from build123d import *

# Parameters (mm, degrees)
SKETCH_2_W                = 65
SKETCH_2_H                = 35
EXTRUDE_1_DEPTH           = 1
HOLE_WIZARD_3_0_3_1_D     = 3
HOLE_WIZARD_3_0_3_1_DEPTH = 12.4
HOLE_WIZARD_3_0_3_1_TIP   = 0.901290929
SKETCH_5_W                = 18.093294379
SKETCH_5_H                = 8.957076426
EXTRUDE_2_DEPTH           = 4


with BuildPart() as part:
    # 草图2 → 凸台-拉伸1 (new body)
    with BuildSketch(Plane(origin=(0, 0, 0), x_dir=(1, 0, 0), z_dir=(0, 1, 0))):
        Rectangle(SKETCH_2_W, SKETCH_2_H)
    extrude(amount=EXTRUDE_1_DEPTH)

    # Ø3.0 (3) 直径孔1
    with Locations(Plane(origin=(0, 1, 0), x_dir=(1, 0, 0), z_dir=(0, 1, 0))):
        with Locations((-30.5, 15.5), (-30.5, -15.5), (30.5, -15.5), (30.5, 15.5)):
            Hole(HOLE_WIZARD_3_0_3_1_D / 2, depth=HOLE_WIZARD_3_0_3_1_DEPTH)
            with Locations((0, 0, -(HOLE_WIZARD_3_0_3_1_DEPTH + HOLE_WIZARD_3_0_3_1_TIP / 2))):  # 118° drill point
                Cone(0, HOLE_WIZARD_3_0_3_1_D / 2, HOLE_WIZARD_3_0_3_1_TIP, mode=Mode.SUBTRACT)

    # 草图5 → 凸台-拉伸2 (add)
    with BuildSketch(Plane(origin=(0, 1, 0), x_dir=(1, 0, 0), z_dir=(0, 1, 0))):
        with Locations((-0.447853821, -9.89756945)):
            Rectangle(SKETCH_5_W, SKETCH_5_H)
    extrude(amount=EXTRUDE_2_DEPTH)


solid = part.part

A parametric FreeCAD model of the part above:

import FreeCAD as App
import Part
import Sketcher

doc = App.newDocument("Part")
body = doc.addObject("PartDesign::Body", "Body")

sketch1 = body.newObject("Sketcher::SketchObject", "Sketch")
sketch1.AttachmentSupport = (doc.getObject("XZ_Plane"), [""])
sketch1.MapMode = "FlatFace"
sketch1.addGeometry([
    Part.LineSegment(App.Vector(-32, -18, 0), App.Vector(-32, 18, 0)),
    Part.LineSegment(App.Vector(-32, 18, 0), App.Vector(32, 18, 0)),
    Part.LineSegment(App.Vector(32, 18, 0), App.Vector(32, -18, 0)),
    Part.LineSegment(App.Vector(32, -18, 0), App.Vector(-32, -18, 0)),
], False)
sketch1.addConstraint([
    Sketcher.Constraint("Coincident", 0, 2, 1, 1),
    Sketcher.Constraint("Coincident", 1, 2, 2, 1),
    Sketcher.Constraint("Coincident", 2, 2, 3, 1),
    Sketcher.Constraint("Coincident", 3, 2, 0, 1),
    Sketcher.Constraint("Vertical", 0),
    Sketcher.Constraint("Horizontal", 1),
    Sketcher.Constraint("Vertical", 2),
    Sketcher.Constraint("Horizontal", 3),
    Sketcher.Constraint("Symmetric", 0, 2, 2, 2, -1, 1),
    Sketcher.Constraint("DistanceX", 1, 1, 1, 2, 65.0),
    Sketcher.Constraint("DistanceY", 0, 1, 0, 2, 35.0),
])
pad1 = body.newObject("PartDesign::Pad", "Pad")
pad1.Profile = sketch1
pad1.Length = 1
pad1.Reversed = True

sketch2 = body.newObject("Sketcher::SketchObject", "Sketch001")
sketch2.AttachmentSupport = (doc.getObject("XZ_Plane"), [""])
sketch2.MapMode = "FlatFace"
sketch2.AttachmentOffset = App.Placement(App.Vector(0, 0, -1), App.Rotation())
sketch2.addGeometry([
    Part.Circle(App.Vector(-30.5, -15.5, 0), App.Vector(0, 0, 1), 1.5),
    Part.Circle(App.Vector(-30.5, 15.5, 0), App.Vector(0, 0, 1), 1.5),
    Part.Circle(App.Vector(30.5, 15.5, 0), App.Vector(0, 0, 1), 1.5),
    Part.Circle(App.Vector(30.5, -15.5, 0), App.Vector(0, 0, 1), 1.5),
], False)
sketch2.addConstraint([
    Sketcher.Constraint("Equal", 0, 1),
    Sketcher.Constraint("Equal", 1, 2),
    Sketcher.Constraint("Equal", 2, 3),
    Sketcher.Constraint("Symmetric", 0, 3, 2, 3, -1, 1),
    Sketcher.Constraint("Symmetric", 1, 3, 3, 3, -1, 1),
    Sketcher.Constraint("Symmetric", 1, 3, 2, 3, -2),
    Sketcher.Constraint("Diameter", 0, 3.0),
    Sketcher.Constraint("DistanceY", 0, 3, 1, 3, 31.0),
    Sketcher.Constraint("DistanceX", 1, 3, 2, 3, 61.0),
])
doc.recompute()
hole = body.newObject("PartDesign::Hole", "Hole")
hole.Profile = sketch2
hole.ThreadType = "None"
hole.Diameter = 3
hole.DepthType = "Dimension"
hole.Depth = 12.4
hole.DrillPoint = "Angled"
hole.DrillPointAngle = 118
hole.Reversed = True

sketch3 = body.newObject("Sketcher::SketchObject", "Sketch002")
sketch3.AttachmentSupport = (doc.getObject("XZ_Plane"), [""])
sketch3.MapMode = "FlatFace"
sketch3.AttachmentOffset = App.Placement(App.Vector(0, 0, -1), App.Rotation())
sketch3.addGeometry([
    Part.LineSegment(App.Vector(-9, 5, 0), App.Vector(-9, 14, 0)),
    Part.LineSegment(App.Vector(-9, 14, 0), App.Vector(9, 14, 0)),
    Part.LineSegment(App.Vector(9, 14, 0), App.Vector(9, 5, 0)),
    Part.LineSegment(App.Vector(9, 5, 0), App.Vector(-9, 5, 0)),
], False)
sketch3.addConstraint([
    Sketcher.Constraint("Coincident", 0, 2, 1, 1),
    Sketcher.Constraint("Coincident", 1, 2, 2, 1),
    Sketcher.Constraint("Coincident", 2, 2, 3, 1),
    Sketcher.Constraint("Coincident", 3, 2, 0, 1),
    Sketcher.Constraint("Vertical", 0),
    Sketcher.Constraint("Horizontal", 1),
    Sketcher.Constraint("Vertical", 2),
    Sketcher.Constraint("Horizontal", 3),
    Sketcher.Constraint("DistanceX", 0, 2, -1, 1, 9.494501),
    Sketcher.Constraint("DistanceX", 1, 1, 1, 2, 18.093294),
    Sketcher.Constraint("DistanceY", 0, 1, 0, 2, 8.957076),
    Sketcher.Constraint("DistanceY", -1, 1, 2, 2, 5.419031),
])
pad2 = body.newObject("PartDesign::Pad", "Pad001")
pad2.Profile = sketch3
pad2.Length = 4
pad2.Reversed = True

doc.recompute()
